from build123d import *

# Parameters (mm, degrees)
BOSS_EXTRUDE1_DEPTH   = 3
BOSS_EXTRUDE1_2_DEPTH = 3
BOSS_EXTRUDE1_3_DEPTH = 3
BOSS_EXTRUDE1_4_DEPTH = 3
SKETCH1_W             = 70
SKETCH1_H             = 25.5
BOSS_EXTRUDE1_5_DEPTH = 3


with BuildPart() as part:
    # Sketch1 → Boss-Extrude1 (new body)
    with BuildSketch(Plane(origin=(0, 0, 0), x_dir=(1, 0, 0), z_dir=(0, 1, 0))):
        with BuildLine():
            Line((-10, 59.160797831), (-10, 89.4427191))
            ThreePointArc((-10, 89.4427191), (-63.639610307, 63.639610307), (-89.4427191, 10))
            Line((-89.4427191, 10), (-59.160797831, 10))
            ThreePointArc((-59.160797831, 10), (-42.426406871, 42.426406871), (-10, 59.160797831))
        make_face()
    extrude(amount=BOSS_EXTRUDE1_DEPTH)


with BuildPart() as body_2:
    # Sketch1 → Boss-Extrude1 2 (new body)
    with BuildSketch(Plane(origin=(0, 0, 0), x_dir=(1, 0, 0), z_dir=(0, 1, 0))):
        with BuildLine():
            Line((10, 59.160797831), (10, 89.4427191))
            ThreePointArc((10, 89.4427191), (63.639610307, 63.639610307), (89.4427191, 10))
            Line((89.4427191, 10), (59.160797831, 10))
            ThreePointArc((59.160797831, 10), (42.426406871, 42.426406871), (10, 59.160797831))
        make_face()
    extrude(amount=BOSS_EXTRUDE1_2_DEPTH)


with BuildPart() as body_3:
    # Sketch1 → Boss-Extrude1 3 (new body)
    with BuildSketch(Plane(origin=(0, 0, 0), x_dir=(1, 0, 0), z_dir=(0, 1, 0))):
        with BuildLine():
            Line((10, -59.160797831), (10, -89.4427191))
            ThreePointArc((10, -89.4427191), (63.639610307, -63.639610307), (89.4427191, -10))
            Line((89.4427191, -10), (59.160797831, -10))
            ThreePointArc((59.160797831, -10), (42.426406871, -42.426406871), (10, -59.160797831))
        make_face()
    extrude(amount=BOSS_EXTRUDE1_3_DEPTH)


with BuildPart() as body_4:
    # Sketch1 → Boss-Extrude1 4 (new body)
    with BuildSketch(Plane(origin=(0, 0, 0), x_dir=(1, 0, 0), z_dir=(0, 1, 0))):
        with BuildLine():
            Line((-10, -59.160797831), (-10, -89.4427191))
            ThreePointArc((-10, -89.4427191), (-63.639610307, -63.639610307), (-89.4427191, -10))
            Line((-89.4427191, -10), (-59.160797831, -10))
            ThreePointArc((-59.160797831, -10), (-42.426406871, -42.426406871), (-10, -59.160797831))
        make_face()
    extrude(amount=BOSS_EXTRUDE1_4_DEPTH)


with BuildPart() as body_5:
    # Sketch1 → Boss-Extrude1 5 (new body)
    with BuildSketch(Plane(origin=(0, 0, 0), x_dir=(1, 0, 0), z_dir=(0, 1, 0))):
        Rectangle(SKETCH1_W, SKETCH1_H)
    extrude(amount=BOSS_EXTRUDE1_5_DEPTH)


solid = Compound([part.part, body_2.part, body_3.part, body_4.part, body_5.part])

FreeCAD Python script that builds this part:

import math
import FreeCAD as App
import Part
import Sketcher
from FreeCAD import Vector
Q = App.Units.Quantity

doc = App.newDocument("Part")
body = doc.addObject("PartDesign::Body", "Body")

# Sketch on XZ plane
sketch1 = doc.addObject("Sketcher::SketchObject", "Sketch")
body.addObject(sketch1)
sketch1.AttachmentSupport = (doc.XZ_Plane, [""])
sketch1.MapMode = "FlatFace"
sketch1.addGeometry(Part.LineSegment(Vector(-10, -59, 0), Vector(-10, -89, 0)), False)
sketch1.addGeometry(Part.ArcOfCircle(Part.Circle(Vector(0, 0, 0), Vector(0, 0, 1), 90), math.radians(-174), math.radians(-96)), False)
sketch1.addGeometry(Part.LineSegment(Vector(-89, -10, 0), Vector(-59, -10, 0)), False)
sketch1.addGeometry(Part.ArcOfCircle(Part.Circle(Vector(0, 0, 0), Vector(0, 0, 1), 60), math.radians(-170), math.radians(-100)), False)
sketch1.addConstraint(Sketcher.Constraint("Coincident", 0, 2, 1, 2))
sketch1.addConstraint(Sketcher.Constraint("Coincident", 1, 1, 2, 1))
sketch1.addConstraint(Sketcher.Constraint("Coincident", 2, 2, 3, 1))
sketch1.addConstraint(Sketcher.Constraint("Coincident", 3, 2, 0, 1))
sketch1.addConstraint(Sketcher.Constraint("Vertical", 0))
sketch1.addConstraint(Sketcher.Constraint("Horizontal", 2))
sketch1.addConstraint(Sketcher.Constraint("Coincident", 1, 3, -1, 1))
sketch1.addConstraint(Sketcher.Constraint("Coincident", 3, 3, -1, 1))
sketch1.addConstraint(Sketcher.Constraint("Equal", 2, 0))
sketch1.addConstraint(Sketcher.Constraint("Radius", 1, Q("90 mm")))
sketch1.addConstraint(Sketcher.Constraint("Radius", 3, Q("60 mm")))
sketch1.addConstraint(Sketcher.Constraint("DistanceX", 0, 2, -1, 1, Q("10 mm")))
pad1 = doc.addObject("PartDesign::Pad", "Pad")
body.addObject(pad1)
pad1.Profile = sketch1
pad1.Length = 3
pad1.Reversed = True
body2 = doc.addObject("PartDesign::Body", "Body001")

# Sketch on XZ plane
sketch2 = doc.addObject("Sketcher::SketchObject", "Sketch001")
body2.addObject(sketch2)
sketch2.AttachmentSupport = (doc.getObject("XZ_Plane001"), [""])
sketch2.MapMode = "FlatFace"
sketch2.addGeometry(Part.LineSegment(Vector(10, -89, 0), Vector(10, -59, 0)), False)
sketch2.addGeometry(Part.ArcOfCircle(Part.Circle(Vector(0, 0, 0), Vector(0, 0, 1), 60), math.radians(-80), math.radians(-10)), False)
sketch2.addGeometry(Part.LineSegment(Vector(59, -10, 0), Vector(89, -10, 0)), False)
sketch2.addGeometry(Part.ArcOfCircle(Part.Circle(Vector(0, 0, 0), Vector(0, 0, 1), 90), math.radians(-84), math.radians(-6)), False)
sketch2.addConstraint(Sketcher.Constraint("Coincident", 0, 2, 1, 1))
sketch2.addConstraint(Sketcher.Constraint("Coincident", 1, 2, 2, 1))
sketch2.addConstraint(Sketcher.Constraint("Coincident", 2, 2, 3, 2))
sketch2.addConstraint(Sketcher.Constraint("Coincident", 3, 1, 0, 1))
sketch2.addConstraint(Sketcher.Constraint("Vertical", 0))
sketch2.addConstraint(Sketcher.Constraint("Horizontal", 2))
sketch2.addConstraint(Sketcher.Constraint("Coincident", 1, 3, -1, 1))
sketch2.addConstraint(Sketcher.Constraint("Coincident", 3, 3, -1, 1))
sketch2.addConstraint(Sketcher.Constraint("Equal", 2, 0))
sketch2.addConstraint(Sketcher.Constraint("Radius", 1, Q("60 mm")))
sketch2.addConstraint(Sketcher.Constraint("Radius", 3, Q("90 mm")))
sketch2.addConstraint(Sketcher.Constraint("DistanceX", -1, 1, 0, 2, Q("10 mm")))
pad2 = doc.addObject("PartDesign::Pad", "Pad001")
body2.addObject(pad2)
pad2.Profile = sketch2
pad2.Length = 3
pad2.Reversed = True
body3 = doc.addObject("PartDesign::Body", "Body002")

# Sketch on XZ plane
sketch3 = doc.addObject("Sketcher::SketchObject", "Sketch002")
body3.addObject(sketch3)
sketch3.AttachmentSupport = (doc.getObject("XZ_Plane002"), [""])
sketch3.MapMode = "FlatFace"
sketch3.addGeometry(Part.LineSegment(Vector(10, 59, 0), Vector(10, 89, 0)), False)
sketch3.addGeometry(Part.ArcOfCircle(Part.Circle(Vector(0, 0, 0), Vector(0, 0, 1), 90), math.radians(6), math.radians(84)), False)
sketch3.addGeometry(Part.LineSegment(Vector(89, 10, 0), Vector(59, 10, 0)), False)
sketch3.addGeometry(Part.ArcOfCircle(Part.Circle(Vector(0, 0, 0), Vector(0, 0, 1), 60), math.radians(10), math.radians(80)), False)
sketch3.addConstraint(Sketcher.Constraint("Coincident", 0, 2, 1, 2))
sketch3.addConstraint(Sketcher.Constraint("Coincident", 1, 1, 2, 1))
sketch3.addConstraint(Sketcher.Constraint("Coincident", 2, 2, 3, 1))
sketch3.addConstraint(Sketcher.Constraint("Coincident", 3, 2, 0, 1))
sketch3.addConstraint(Sketcher.Constraint("Vertical", 0))
sketch3.addConstraint(Sketcher.Constraint("Horizontal", 2))
sketch3.addConstraint(Sketcher.Constraint("Coincident", 1, 3, -1, 1))
sketch3.addConstraint(Sketcher.Constraint("Coincident", 3, 3, -1, 1))
sketch3.addConstraint(Sketcher.Constraint("Equal", 2, 0))
sketch3.addConstraint(Sketcher.Constraint("Radius", 1, Q("90 mm")))
sketch3.addConstraint(Sketcher.Constraint("Radius", 3, Q("60 mm")))
sketch3.addConstraint(Sketcher.Constraint("DistanceX", -1, 1, 0, 2, Q("10 mm")))
pad3 = doc.addObject("PartDesign::Pad", "Pad002")
body3.addObject(pad3)
pad3.Profile = sketch3
pad3.Length = 3
pad3.Reversed = True
body4 = doc.addObject("PartDesign::Body", "Body003")

# Sketch on XZ plane
sketch4 = doc.addObject("Sketcher::SketchObject", "Sketch003")
body4.addObject(sketch4)
sketch4.AttachmentSupport = (doc.getObject("XZ_Plane003"), [""])
sketch4.MapMode = "FlatFace"
sketch4.addGeometry(Part.LineSegment(Vector(-10, 89, 0), Vector(-10, 59, 0)), False)
sketch4.addGeometry(Part.ArcOfCircle(Part.Circle(Vector(0, 0, 0), Vector(0, 0, 1), 60), math.radians(100), math.radians(170)), False)
sketch4.addGeometry(Part.LineSegment(Vector(-59, 10, 0), Vector(-89, 10, 0)), False)
sketch4.addGeometry(Part.ArcOfCircle(Part.Circle(Vector(0, 0, 0), Vector(0, 0, 1), 90), math.radians(96), math.radians(174)), False)
sketch4.addConstraint(Sketcher.Constraint("Coincident", 0, 2, 1, 1))
sketch4.addConstraint(Sketcher.Constraint("Coincident", 1, 2, 2, 1))
sketch4.addConstraint(Sketcher.Constraint("Coincident", 2, 2, 3, 2))
sketch4.addConstraint(Sketcher.Constraint("Coincident", 3, 1, 0, 1))
sketch4.addConstraint(Sketcher.Constraint("Vertical", 0))
sketch4.addConstraint(Sketcher.Constraint("Horizontal", 2))
sketch4.addConstraint(Sketcher.Constraint("Coincident", 1, 3, -1, 1))
sketch4.addConstraint(Sketcher.Constraint("Coincident", 3, 3, -1, 1))
sketch4.addConstraint(Sketcher.Constraint("Equal", 2, 0))
sketch4.addConstraint(Sketcher.Constraint("Radius", 1, Q("60 mm")))
sketch4.addConstraint(Sketcher.Constraint("Radius", 3, Q("90 mm")))
sketch4.addConstraint(Sketcher.Constraint("DistanceX", 0, 2, -1, 1, Q("10 mm")))
pad4 = doc.addObject("PartDesign::Pad", "Pad003")
body4.addObject(pad4)
pad4.Profile = sketch4
pad4.Length = 3
pad4.Reversed = True
body5 = doc.addObject("PartDesign::Body", "Body004")

# Sketch on XZ plane
sketch5 = doc.addObject("Sketcher::SketchObject", "Sketch004")
body5.addObject(sketch5)
sketch5.AttachmentSupport = (doc.getObject("XZ_Plane004"), [""])
sketch5.MapMode = "FlatFace"
sketch5.addGeometry(Part.LineSegment(Vector(-35, -13, 0), Vector(-35, 13, 0)), False)
sketch5.addGeometry(Part.LineSegment(Vector(-35, 13, 0), Vector(35, 13, 0)), False)
sketch5.addGeometry(Part.LineSegment(Vector(35, 13, 0), Vector(35, -13, 0)), False)
sketch5.addGeometry(Part.LineSegment(Vector(35, -13, 0), Vector(-35, -13, 0)), False)
sketch5.addConstraint(Sketcher.Constraint("Coincident", 0, 2, 1, 1))
sketch5.addConstraint(Sketcher.Constraint("Coincident", 1, 2, 2, 1))
sketch5.addConstraint(Sketcher.Constraint("Coincident", 2, 2, 3, 1))
sketch5.addConstraint(Sketcher.Constraint("Coincident", 3, 2, 0, 1))
sketch5.addConstraint(Sketcher.Constraint("Vertical", 0))
sketch5.addConstraint(Sketcher.Constraint("Horizontal", 1))
sketch5.addConstraint(Sketcher.Constraint("Vertical", 2))
sketch5.addConstraint(Sketcher.Constraint("Horizontal", 3))
sketch5.addConstraint(Sketcher.Constraint("Symmetric", 0, 2, 2, 2, -1, 1))
sketch5.addConstraint(Sketcher.Constraint("DistanceX", 1, 1, 1, 2, Q("70 mm")))
sketch5.addConstraint(Sketcher.Constraint("DistanceY", 0, 1, 0, 2, Q("25.5 mm")))
pad5 = doc.addObject("PartDesign::Pad", "Pad004")
body5.addObject(pad5)
pad5.Profile = sketch5
pad5.Length = 3
pad5.Reversed = True

doc.recompute()
